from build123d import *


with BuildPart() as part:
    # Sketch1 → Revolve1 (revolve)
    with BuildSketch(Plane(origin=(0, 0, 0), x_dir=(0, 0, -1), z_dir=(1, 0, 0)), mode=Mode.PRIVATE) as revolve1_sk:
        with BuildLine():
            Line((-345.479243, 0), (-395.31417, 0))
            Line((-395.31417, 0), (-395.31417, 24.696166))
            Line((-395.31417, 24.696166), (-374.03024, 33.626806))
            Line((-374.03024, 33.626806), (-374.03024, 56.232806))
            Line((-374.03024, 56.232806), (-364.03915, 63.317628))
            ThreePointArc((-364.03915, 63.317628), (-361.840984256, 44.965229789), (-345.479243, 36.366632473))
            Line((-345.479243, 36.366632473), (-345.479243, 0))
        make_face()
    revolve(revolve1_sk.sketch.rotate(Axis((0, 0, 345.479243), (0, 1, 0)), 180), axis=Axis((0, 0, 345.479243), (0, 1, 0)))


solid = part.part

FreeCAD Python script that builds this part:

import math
import FreeCAD as App
import Part
import Sketcher
Q = App.Units.Quantity

doc = App.newDocument("Part")
body = doc.addObject("PartDesign::Body", "Body")

sketch1 = body.newObject("Sketcher::SketchObject", "Sketch")
sketch1.AttachmentSupport = (doc.getObject("YZ_Plane"), [""])
sketch1.MapMode = "FlatFace"
sketch1.addGeometry(Part.LineSegment(App.Vector(0, 395, 0), App.Vector(0, 345, 0)), False)
sketch1.addGeometry(Part.LineSegment(App.Vector(0, 345, 0), App.Vector(36, 345, 0)), False)
sketch1.addGeometry(Part.ArcOfCircle(Part.Circle(App.Vector(56, 345, 0), App.Vector(0, 0, 1), 20), math.radians(69), math.radians(180)), False)
sketch1.addGeometry(Part.LineSegment(App.Vector(63, 364, 0), App.Vector(56, 374, 0)), False)
sketch1.addGeometry(Part.LineSegment(App.Vector(56, 374, 0), App.Vector(34, 374, 0)), False)
sketch1.addGeometry(Part.LineSegment(App.Vector(34, 374, 0), App.Vector(25, 395, 0)), False)
sketch1.addGeometry(Part.LineSegment(App.Vector(25, 395, 0), App.Vector(0, 395, 0)), False)
sketch1.addGeometry(Part.LineSegment(App.Vector(0, 345, 0), App.Vector(63, 345, 0)), True)
sketch1.addConstraint(Sketcher.Constraint("Coincident", 0, 2, 1, 1))
sketch1.addConstraint(Sketcher.Constraint("Coincident", 1, 2, 2, 2))
sketch1.addConstraint(Sketcher.Constraint("Coincident", 2, 1, 3, 1))
sketch1.addConstraint(Sketcher.Constraint("Coincident", 3, 2, 4, 1))
sketch1.addConstraint(Sketcher.Constraint("Coincident", 4, 2, 5, 1))
sketch1.addConstraint(Sketcher.Constraint("Coincident", 5, 2, 6, 1))
sketch1.addConstraint(Sketcher.Constraint("Coincident", 6, 2, 0, 1))
sketch1.addConstraint(Sketcher.Constraint("Vertical", 0))
sketch1.addConstraint(Sketcher.Constraint("Horizontal", 1))
sketch1.addConstraint(Sketcher.Constraint("Horizontal", 4))
sketch1.addConstraint(Sketcher.Constraint("Horizontal", 6))
sketch1.addConstraint(Sketcher.Constraint("Horizontal", 7))
sketch1.addConstraint(Sketcher.Constraint("Coincident", 7, 1, 0, 2))
sketch1.addConstraint(Sketcher.Constraint("PointOnObject", 0, 2, -2))
sketch1.addConstraint(Sketcher.Constraint("Horizontal", 2, 3, 0, 2))
sketch1.addConstraint(Sketcher.Constraint("Vertical", 2, 3, 3, 2))
sketch1.addConstraint(Sketcher.Constraint("Vertical", 2, 1, 7, 2))
sketch1.addConstraint(Sketcher.Constraint("DistanceX", 4, 2, 4, 1, Q("0.89 in")))
sketch1.addConstraint(Sketcher.Constraint("DistanceY", -1, 1, 3, 2, Q("14.7256 in")))
sketch1.addConstraint(Sketcher.Constraint("Radius", 2, 19.866174))
sketch1.addConstraint(Sketcher.Constraint("DistanceX", 5, 2, 4, 2, Q("0.3516 in")))
sketch1.addConstraint(Sketcher.Constraint("DistanceY", 2, 1, 5, 2, Q("1.2313 in")))
sketch1.addConstraint(Sketcher.Constraint("DistanceX", 1, 1, 1, 2, 36.366632))
sketch1.addConstraint(Sketcher.Constraint("DistanceX", 7, 1, 7, 2, 63.317628))
sketch1.addConstraint(Sketcher.Constraint("DistanceY", -1, 1, 2, 1, 364.03915))
revolution = body.newObject("PartDesign::Revolution", "Revolution")
revolution.Profile = sketch1
revolution.ReferenceAxis = (sketch1, ["Axis0"])
revolution.Angle = 360

doc.recompute()
